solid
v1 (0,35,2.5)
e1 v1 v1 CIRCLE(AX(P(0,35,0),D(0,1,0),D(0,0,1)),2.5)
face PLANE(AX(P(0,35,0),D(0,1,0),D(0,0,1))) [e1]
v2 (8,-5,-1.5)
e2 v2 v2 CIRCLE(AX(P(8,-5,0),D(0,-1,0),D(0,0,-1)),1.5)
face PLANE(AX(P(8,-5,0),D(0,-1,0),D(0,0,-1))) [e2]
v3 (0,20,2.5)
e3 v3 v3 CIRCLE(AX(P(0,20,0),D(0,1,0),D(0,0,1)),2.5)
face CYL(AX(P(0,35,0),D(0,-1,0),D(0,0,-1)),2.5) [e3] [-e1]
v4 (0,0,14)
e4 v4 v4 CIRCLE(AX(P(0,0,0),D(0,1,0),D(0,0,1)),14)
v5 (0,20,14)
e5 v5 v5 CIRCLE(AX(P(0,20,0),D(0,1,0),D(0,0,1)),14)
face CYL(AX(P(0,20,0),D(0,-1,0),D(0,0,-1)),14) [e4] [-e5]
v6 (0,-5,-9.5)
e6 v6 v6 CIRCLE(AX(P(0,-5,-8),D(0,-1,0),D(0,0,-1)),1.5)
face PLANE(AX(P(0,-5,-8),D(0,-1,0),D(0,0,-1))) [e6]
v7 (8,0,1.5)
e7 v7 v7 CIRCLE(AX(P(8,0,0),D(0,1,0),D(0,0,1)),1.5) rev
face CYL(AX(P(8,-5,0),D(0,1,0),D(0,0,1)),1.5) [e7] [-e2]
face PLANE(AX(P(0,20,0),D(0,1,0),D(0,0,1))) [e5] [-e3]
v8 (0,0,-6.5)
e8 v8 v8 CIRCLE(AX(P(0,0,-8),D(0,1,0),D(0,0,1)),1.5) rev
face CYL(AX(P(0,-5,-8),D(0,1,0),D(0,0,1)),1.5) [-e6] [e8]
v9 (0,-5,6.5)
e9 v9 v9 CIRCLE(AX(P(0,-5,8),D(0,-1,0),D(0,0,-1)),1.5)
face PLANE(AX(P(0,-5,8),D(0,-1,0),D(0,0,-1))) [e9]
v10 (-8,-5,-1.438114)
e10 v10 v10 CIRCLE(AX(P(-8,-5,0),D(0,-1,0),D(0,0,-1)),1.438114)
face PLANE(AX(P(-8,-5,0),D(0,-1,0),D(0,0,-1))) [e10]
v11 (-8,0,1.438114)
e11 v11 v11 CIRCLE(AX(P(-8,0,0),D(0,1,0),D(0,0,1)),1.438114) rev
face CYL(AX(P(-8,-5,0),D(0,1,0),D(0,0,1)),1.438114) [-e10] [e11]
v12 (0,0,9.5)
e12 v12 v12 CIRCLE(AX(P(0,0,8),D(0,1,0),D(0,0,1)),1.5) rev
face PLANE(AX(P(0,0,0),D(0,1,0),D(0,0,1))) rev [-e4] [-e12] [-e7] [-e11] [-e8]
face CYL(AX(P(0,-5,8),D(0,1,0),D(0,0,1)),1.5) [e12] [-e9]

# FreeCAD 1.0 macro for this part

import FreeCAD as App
import Part
import Sketcher
from FreeCAD import Vector

doc = App.newDocument("Part")
body = doc.addObject("PartDesign::Body", "Body")

# Sketch on XZ plane
sketch1 = body.newObject("Sketcher::SketchObject", "Sketch")
sketch1.AttachmentSupport = (doc.getObject("XZ_Plane"), [""])
sketch1.MapMode = "FlatFace"
sketch1.addGeometry(Part.Circle(Vector(0, 0, 0), Vector(0, 0, 1), 14), False)
sketch1.addConstraint(Sketcher.Constraint("Coincident", 0, 3, -1, 1))
sketch1.addConstraint(Sketcher.Constraint("Diameter", 0, 28.0))
pad1 = body.newObject("PartDesign::Pad", "Pad")
pad1.Profile = sketch1
pad1.Length = 20
pad1.Reversed = True

# Sketch on XZ plane
sketch2 = body.newObject("Sketcher::SketchObject", "Sketch001")
sketch2.AttachmentSupport = (doc.getObject("XZ_Plane"), [""])
sketch2.MapMode = "FlatFace"
sketch2.AttachmentOffset = App.Placement(Vector(0, 0, -20), App.Rotation())
sketch2.addGeometry(Part.Circle(Vector(0, 0, 0), Vector(0, 0, 1), 2.5), False)
sketch2.addConstraint(Sketcher.Constraint("Coincident", 0, 3, -1, 1))
sketch2.addConstraint(Sketcher.Constraint("Diameter", 0, 5.0))
pad2 = body.newObject("PartDesign::Pad", "Pad001")
pad2.Profile = sketch2
pad2.Length = 15
pad2.Reversed = True

# Sketch on XZ plane
sketch3 = body.newObject("Sketcher::SketchObject", "Sketch002")
sketch3.AttachmentSupport = (doc.getObject("XZ_Plane"), [""])
sketch3.MapMode = "FlatFace"
sketch3.addGeometry(Part.Circle(Vector(8, 0, 0), Vector(0, 0, 1), 1.5), False)
sketch3.addGeometry(Part.Circle(Vector(0, -8, 0), Vector(0, 0, 1), 1.5), False)
sketch3.addGeometry(Part.Circle(Vector(-8, 0, 0), Vector(0, 0, 1), 1.438114), False)
sketch3.addGeometry(Part.Circle(Vector(0, 8, 0), Vector(0, 0, 1), 1.5), False)
sketch3.addConstraint(Sketcher.Constraint("Equal", 0, 1))
sketch3.addConstraint(Sketcher.Constraint("Equal", 1, 3))
sketch3.addConstraint(Sketcher.Constraint("Symmetric", 0, 3, 2, 3, -1, 1))
sketch3.addConstraint(Sketcher.Constraint("Symmetric", 1, 3, 3, 3, -1, 1))
sketch3.addConstraint(Sketcher.Constraint("PointOnObject", 0, 3, -1))
sketch3.addConstraint(Sketcher.Constraint("PointOnObject", 1, 3, -2))
sketch3.addConstraint(Sketcher.Constraint("Diameter", 0, 3.0))
sketch3.addConstraint(Sketcher.Constraint("DistanceX", -1, 1, 0, 3, 8.0))
sketch3.addConstraint(Sketcher.Constraint("DistanceY", 1, 3, -1, 1, 8.0))
sketch3.addConstraint(Sketcher.Constraint("Diameter", 2, 2.876228))
pad3 = body.newObject("PartDesign::Pad", "Pad002")
pad3.Profile = sketch3
pad3.Length = 5

doc.recompute()
